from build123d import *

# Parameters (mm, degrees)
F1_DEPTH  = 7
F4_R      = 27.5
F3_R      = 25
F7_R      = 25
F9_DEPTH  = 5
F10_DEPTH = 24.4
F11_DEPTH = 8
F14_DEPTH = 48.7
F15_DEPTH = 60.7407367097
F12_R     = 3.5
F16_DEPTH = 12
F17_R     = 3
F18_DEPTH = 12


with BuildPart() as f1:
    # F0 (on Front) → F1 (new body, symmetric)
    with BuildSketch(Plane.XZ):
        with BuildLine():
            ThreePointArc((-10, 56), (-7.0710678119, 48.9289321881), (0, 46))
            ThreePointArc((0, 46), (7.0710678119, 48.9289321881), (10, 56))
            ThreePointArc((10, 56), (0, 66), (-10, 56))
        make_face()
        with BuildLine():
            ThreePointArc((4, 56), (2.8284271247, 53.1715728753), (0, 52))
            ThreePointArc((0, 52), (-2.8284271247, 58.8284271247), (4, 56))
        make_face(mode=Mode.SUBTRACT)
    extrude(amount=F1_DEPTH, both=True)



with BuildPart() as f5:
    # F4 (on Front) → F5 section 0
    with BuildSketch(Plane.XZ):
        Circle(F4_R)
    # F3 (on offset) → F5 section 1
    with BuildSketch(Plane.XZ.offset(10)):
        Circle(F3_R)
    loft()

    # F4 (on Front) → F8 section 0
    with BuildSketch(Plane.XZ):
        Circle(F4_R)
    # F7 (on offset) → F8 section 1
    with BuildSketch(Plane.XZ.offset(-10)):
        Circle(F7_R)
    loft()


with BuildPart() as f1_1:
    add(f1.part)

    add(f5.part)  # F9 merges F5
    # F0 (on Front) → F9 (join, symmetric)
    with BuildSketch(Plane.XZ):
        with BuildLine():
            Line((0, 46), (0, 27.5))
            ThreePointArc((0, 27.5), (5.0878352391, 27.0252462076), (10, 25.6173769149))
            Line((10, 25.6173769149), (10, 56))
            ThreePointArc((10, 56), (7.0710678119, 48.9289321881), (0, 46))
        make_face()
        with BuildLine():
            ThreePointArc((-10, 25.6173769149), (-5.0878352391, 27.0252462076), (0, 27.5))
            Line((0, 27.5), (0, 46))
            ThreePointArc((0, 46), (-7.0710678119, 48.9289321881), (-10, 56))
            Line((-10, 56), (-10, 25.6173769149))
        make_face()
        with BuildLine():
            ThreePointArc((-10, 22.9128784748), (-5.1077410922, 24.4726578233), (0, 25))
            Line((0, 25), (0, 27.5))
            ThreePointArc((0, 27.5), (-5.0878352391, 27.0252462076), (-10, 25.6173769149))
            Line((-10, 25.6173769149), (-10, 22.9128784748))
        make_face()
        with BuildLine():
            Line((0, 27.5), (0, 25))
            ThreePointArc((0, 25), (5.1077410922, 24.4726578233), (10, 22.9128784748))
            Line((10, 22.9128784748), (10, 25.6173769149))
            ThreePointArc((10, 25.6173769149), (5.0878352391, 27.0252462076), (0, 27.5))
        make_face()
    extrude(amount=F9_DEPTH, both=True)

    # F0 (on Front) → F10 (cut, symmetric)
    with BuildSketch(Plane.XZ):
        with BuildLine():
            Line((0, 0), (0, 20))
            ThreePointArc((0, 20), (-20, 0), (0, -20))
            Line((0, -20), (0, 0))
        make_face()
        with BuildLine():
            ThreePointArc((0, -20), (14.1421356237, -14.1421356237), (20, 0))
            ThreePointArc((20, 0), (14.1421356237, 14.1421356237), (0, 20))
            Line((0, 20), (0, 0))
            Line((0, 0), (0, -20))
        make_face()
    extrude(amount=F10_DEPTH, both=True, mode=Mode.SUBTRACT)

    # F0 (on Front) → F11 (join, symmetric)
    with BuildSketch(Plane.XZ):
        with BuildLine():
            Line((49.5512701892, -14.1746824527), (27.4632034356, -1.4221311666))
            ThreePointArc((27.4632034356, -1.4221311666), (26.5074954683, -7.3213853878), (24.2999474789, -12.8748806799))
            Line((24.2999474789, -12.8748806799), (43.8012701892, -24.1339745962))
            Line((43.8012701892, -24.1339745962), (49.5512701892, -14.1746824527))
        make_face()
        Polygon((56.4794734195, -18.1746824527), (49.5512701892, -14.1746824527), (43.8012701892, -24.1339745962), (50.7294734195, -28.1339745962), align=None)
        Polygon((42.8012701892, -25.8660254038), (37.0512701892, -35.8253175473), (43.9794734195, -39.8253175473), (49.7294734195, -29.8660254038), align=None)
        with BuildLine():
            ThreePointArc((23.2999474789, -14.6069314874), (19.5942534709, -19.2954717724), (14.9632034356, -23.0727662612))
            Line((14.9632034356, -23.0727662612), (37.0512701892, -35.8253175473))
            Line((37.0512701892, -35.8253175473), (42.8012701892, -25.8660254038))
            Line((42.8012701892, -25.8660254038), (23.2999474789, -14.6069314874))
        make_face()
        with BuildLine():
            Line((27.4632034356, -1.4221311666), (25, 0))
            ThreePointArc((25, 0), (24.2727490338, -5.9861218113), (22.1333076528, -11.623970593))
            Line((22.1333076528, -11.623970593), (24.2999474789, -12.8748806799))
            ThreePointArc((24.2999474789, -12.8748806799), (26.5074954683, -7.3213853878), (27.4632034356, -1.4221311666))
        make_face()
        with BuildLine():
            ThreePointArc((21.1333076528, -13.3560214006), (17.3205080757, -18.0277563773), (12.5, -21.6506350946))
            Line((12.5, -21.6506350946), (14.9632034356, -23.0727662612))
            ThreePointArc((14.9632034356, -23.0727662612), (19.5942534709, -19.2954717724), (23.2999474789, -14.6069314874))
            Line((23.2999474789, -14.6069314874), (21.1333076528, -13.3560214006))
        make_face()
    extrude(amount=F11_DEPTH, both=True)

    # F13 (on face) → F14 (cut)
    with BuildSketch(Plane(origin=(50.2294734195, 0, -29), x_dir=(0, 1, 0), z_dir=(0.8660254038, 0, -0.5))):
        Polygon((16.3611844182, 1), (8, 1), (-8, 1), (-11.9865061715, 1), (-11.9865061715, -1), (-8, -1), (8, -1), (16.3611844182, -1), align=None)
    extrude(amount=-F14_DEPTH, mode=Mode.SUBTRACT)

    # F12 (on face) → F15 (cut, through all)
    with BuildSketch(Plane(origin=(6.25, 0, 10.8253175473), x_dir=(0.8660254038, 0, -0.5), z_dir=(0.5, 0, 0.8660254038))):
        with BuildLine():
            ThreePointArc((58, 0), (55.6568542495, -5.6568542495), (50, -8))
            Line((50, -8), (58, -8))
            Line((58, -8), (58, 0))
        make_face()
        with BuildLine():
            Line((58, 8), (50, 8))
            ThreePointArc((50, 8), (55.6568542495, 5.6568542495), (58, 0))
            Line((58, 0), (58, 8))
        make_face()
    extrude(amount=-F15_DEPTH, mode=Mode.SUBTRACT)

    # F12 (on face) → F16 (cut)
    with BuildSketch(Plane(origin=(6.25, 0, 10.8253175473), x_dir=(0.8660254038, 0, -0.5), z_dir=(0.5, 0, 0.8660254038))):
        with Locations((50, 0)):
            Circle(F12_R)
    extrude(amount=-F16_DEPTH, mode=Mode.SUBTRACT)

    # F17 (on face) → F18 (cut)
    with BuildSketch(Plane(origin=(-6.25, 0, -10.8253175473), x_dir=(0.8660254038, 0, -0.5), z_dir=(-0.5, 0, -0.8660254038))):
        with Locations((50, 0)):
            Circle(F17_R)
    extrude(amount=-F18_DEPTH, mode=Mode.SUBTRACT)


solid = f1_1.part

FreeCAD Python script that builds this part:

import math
import FreeCAD as App
import Part
import Sketcher

V = App.Vector
Q = App.Units.Quantity

doc = App.newDocument("Part")
params = doc.addObject("Spreadsheet::Sheet", "Params")
for row, (alias, value) in enumerate([
    ("sketch1_radius", "10 mm"),
    ("sketch1_radius2", "4 mm"),
    ("pad1_length", "14 mm"),
    ("sketch2_diameter", "55 mm"),
    ("sketch3_diameter", "50 mm"),
    ("sketch4_diameter", "55 mm"),
    ("sketch5_diameter", "50 mm"),
    ("sketch6_radius", "10 mm"),
    ("sketch6_radius2", "25 mm"),
    ("pad2_length", "10 mm"),
    ("sketch7_radius", "20 mm"),
    ("pocket1_length", "48.8 mm"),
    ("sketch8_radius", "25 mm"),
    ("sketch8_length", "8 mm"),
    ("pad3_length", "16 mm"),
    ("sketch9_height", "2 mm"),
    ("pocket2_length", "48.7 mm"),
    ("sketch10_radius", "8 mm"),
    ("sketch11_diameter", "7 mm"),
    ("pocket4_length", "12 mm"),
    ("sketch12_diameter", "6 mm"),
    ("pocket5_length", "12 mm"),
], start=1):
    params.set(f"A{row}", alias)
    params.set(f"B{row}", "=" + value)
    params.setAlias(f"B{row}", alias)

body = doc.addObject("PartDesign::Body", "Body")

# Sketch on XZ plane
sketch1 = body.newObject("Sketcher::SketchObject", "Sketch")
sketch1.AttachmentSupport = (doc.getObject("XZ_Plane"), [""])
sketch1.MapMode = "FlatFace"
sketch1.addGeometry(Part.ArcOfCircle(Part.Circle(V(0, 56, 0), V(0, 0, 1), 10), math.radians(180), math.radians(270)), False)
sketch1.addGeometry(Part.ArcOfCircle(Part.Circle(V(0, 56, 0), V(0, 0, 1), 10), math.radians(-90), math.radians(0)), False)
sketch1.addGeometry(Part.ArcOfCircle(Part.Circle(V(0, 56, 0), V(0, 0, 1), 10), math.radians(0), math.radians(180)), False)
sketch1.addGeometry(Part.ArcOfCircle(Part.Circle(V(0, 56, 0), V(0, 0, 1), 4), math.radians(0), math.radians(270)), False)
sketch1.addGeometry(Part.ArcOfCircle(Part.Circle(V(0, 56, 0), V(0, 0, 1), 4), math.radians(-90), math.radians(0)), False)
sketch1.addConstraint(Sketcher.Constraint("Tangent", 0, 2, 1, 1))
sketch1.addConstraint(Sketcher.Constraint("Tangent", 1, 2, 2, 1))
sketch1.addConstraint(Sketcher.Constraint("Tangent", 2, 2, 0, 1))
sketch1.addConstraint(Sketcher.Constraint("Tangent", 3, 1, 4, 2))
sketch1.addConstraint(Sketcher.Constraint("Coincident", 4, 1, 3, 2))
sketch1.addConstraint(Sketcher.Constraint("Coincident", 3, 3, 0, 3))
sketch1.addConstraint(Sketcher.Constraint("Symmetric", 1, 2, 2, 2, -2))
sketch1.addConstraint(Sketcher.Constraint("PointOnObject", 0, 2, -2))
sketch1.addConstraint(Sketcher.Constraint("PointOnObject", 4, 1, -2))
sketch1.addConstraint(Sketcher.Constraint("Horizontal", 4, 3, 1, 2))
sketch1.addConstraint(Sketcher.Constraint("Horizontal", 2, 2, 3, 1))
sketch1.addConstraint(Sketcher.Constraint("Radius", 0, 10.0))
sketch1.addConstraint(Sketcher.Constraint("Radius", 3, 4.0))
sketch1.addConstraint(Sketcher.Constraint("DistanceY", -1, 1, 0, 3, 56.0))
sketch1.setExpression("Constraints[11]", "Params.sketch1_radius")
sketch1.setExpression("Constraints[12]", "Params.sketch1_radius2")
pad1 = body.newObject("PartDesign::Pad", "Pad")
pad1.Profile = sketch1
pad1.setExpression("Length", "Params.pad1_length")
pad1.Midplane = True
body2 = doc.addObject("PartDesign::Body", "Body001")

# Sketch on XZ plane
sketch2 = body2.newObject("Sketcher::SketchObject", "Sketch001")
sketch2.AttachmentSupport = (doc.getObject("XZ_Plane001"), [""])
sketch2.MapMode = "FlatFace"
sketch2.addGeometry(Part.Circle(V(0, 0, 0), V(0, 0, 1), 27.5), False)
sketch2.addConstraint(Sketcher.Constraint("Coincident", 0, 3, -1, 1))
sketch2.addConstraint(Sketcher.Constraint("Diameter", 0, 55.0))
sketch2.setExpression("Constraints[1]", "Params.sketch2_diameter")

# Sketch on XZ plane
sketch3 = body2.newObject("Sketcher::SketchObject", "Sketch002")
sketch3.AttachmentSupport = (doc.getObject("XZ_Plane001"), [""])
sketch3.MapMode = "FlatFace"
sketch3.AttachmentOffset = App.Placement(V(0, 0, 10), App.Rotation())
sketch3.addGeometry(Part.Circle(V(0, 0, 0), V(0, 0, 1), 25), False)
sketch3.addConstraint(Sketcher.Constraint("Coincident", 0, 3, -1, 1))
sketch3.addConstraint(Sketcher.Constraint("Diameter", 0, 50.0))
sketch3.setExpression("Constraints[1]", "Params.sketch3_diameter")

additiveloft = body2.newObject("PartDesign::AdditiveLoft", "AdditiveLoft")
additiveloft.Profile = sketch2
additiveloft.Sections = [sketch3]

# Sketch on XZ plane
sketch4 = body2.newObject("Sketcher::SketchObject", "Sketch003")
sketch4.AttachmentSupport = (doc.getObject("XZ_Plane001"), [""])
sketch4.MapMode = "FlatFace"
sketch4.addGeometry(Part.Circle(V(0, 0, 0), V(0, 0, 1), 27.5), False)
sketch4.addConstraint(Sketcher.Constraint("Coincident", 0, 3, -1, 1))
sketch4.addConstraint(Sketcher.Constraint("Diameter", 0, 55.0))
sketch4.setExpression("Constraints[1]", "Params.sketch4_diameter")

# Sketch on XZ plane
sketch5 = body2.newObject("Sketcher::SketchObject", "Sketch004")
sketch5.AttachmentSupport = (doc.getObject("XZ_Plane001"), [""])
sketch5.MapMode = "FlatFace"
sketch5.AttachmentOffset = App.Placement(V(0, 0, -10), App.Rotation())
sketch5.addGeometry(Part.Circle(V(0, 0, 0), V(0, 0, 1), 25), False)
sketch5.addConstraint(Sketcher.Constraint("Coincident", 0, 3, -1, 1))
sketch5.addConstraint(Sketcher.Constraint("Diameter", 0, 50.0))
sketch5.setExpression("Constraints[1]", "Params.sketch5_diameter")

additiveloft2 = body2.newObject("PartDesign::AdditiveLoft", "AdditiveLoft001")
additiveloft2.Profile = sketch4
additiveloft2.Sections = [sketch5]
body.AllowCompound = True
doc.recompute()

boolean = body.newObject("PartDesign::Boolean", "Boolean")
boolean.Type = "Fuse"
boolean.addObjects([body2])

# Sketch on XZ plane
sketch6 = body.newObject("Sketcher::SketchObject", "Sketch005")
sketch6.AttachmentSupport = (doc.getObject("XZ_Plane"), [""])
sketch6.MapMode = "FlatFace"
sketch6.addGeometry(Part.ArcOfCircle(Part.Circle(V(0, 56, 0), V(0, 0, 1), 10), math.radians(-90), math.radians(0)), False)
sketch6.addGeometry(Part.ArcOfCircle(Part.Circle(V(0, 56, 0), V(0, 0, 1), 10), math.radians(180), math.radians(270)), False)
sketch6.addGeometry(Part.LineSegment(V(-10, 56, 0), V(-10, 22.912878, 0)), False)
sketch6.addGeometry(Part.ArcOfCircle(Part.Circle(V(0, 0, 0), V(0, 0, 1), 25), math.radians(90), math.radians(113.578178)), False)
sketch6.addGeometry(Part.ArcOfCircle(Part.Circle(V(0, 0, 0), V(0, 0, 1), 25), math.radians(66.421822), math.radians(90)), False)
sketch6.addGeometry(Part.LineSegment(V(10, 22.912878, 0), V(10, 56, 0)), False)
sketch6.addConstraint(Sketcher.Constraint("Tangent", 0, 1, 1, 2))
sketch6.addConstraint(Sketcher.Constraint("Tangent", 1, 1, 2, 1))
sketch6.addConstraint(Sketcher.Constraint("Coincident", 2, 2, 3, 2))
sketch6.addConstraint(Sketcher.Constraint("Tangent", 3, 1, 4, 2))
sketch6.addConstraint(Sketcher.Constraint("Coincident", 4, 1, 5, 1))
sketch6.addConstraint(Sketcher.Constraint("Tangent", 5, 2, 0, 2))
sketch6.addConstraint(Sketcher.Constraint("Vertical", 2))
sketch6.addConstraint(Sketcher.Constraint("Vertical", 5))
sketch6.addConstraint(Sketcher.Constraint("Coincident", 3, 3, -1, 1))
sketch6.addConstraint(Sketcher.Constraint("Equal", 0, 1))
sketch6.addConstraint(Sketcher.Constraint("Equal", 3, 4))
sketch6.addConstraint(Sketcher.Constraint("PointOnObject", 0, 3, -2))
sketch6.addConstraint(Sketcher.Constraint("PointOnObject", 0, 1, -2))
sketch6.addConstraint(Sketcher.Constraint("PointOnObject", 3, 1, -2))
sketch6.addConstraint(Sketcher.Constraint("Radius", 0, 10.0))
sketch6.addConstraint(Sketcher.Constraint("Radius", 3, 25.0))
sketch6.addConstraint(Sketcher.Constraint("DistanceY", -1, 1, 0, 3, 56.0))
sketch6.setExpression("Constraints[14]", "Params.sketch6_radius")
sketch6.setExpression("Constraints[15]", "Params.sketch6_radius2")
pad2 = body.newObject("PartDesign::Pad", "Pad001")
pad2.Profile = sketch6
pad2.setExpression("Length", "Params.pad2_length")
pad2.Midplane = True

# Sketch on XZ plane
sketch7 = body.newObject("Sketcher::SketchObject", "Sketch006")
sketch7.AttachmentSupport = (doc.getObject("XZ_Plane"), [""])
sketch7.MapMode = "FlatFace"
sketch7.addGeometry(Part.ArcOfCircle(Part.Circle(V(0, 0, 0), V(0, 0, 1), 20), math.radians(90), math.radians(270)), False)
sketch7.addGeometry(Part.ArcOfCircle(Part.Circle(V(0, 0, 0), V(0, 0, 1), 20), math.radians(-90), math.radians(0)), False)
sketch7.addGeometry(Part.ArcOfCircle(Part.Circle(V(0, 0, 0), V(0, 0, 1), 20), math.radians(0), math.radians(90)), False)
sketch7.addConstraint(Sketcher.Constraint("Tangent", 0, 2, 1, 1))
sketch7.addConstraint(Sketcher.Constraint("Tangent", 1, 2, 2, 1))
sketch7.addConstraint(Sketcher.Constraint("Tangent", 2, 2, 0, 1))
sketch7.addConstraint(Sketcher.Constraint("Coincident", 0, 3, -1, 1))
sketch7.addConstraint(Sketcher.Constraint("PointOnObject", 0, 2, -2))
sketch7.addConstraint(Sketcher.Constraint("PointOnObject", 1, 2, -1))
sketch7.addConstraint(Sketcher.Constraint("PointOnObject", 2, 2, -2))
sketch7.addConstraint(Sketcher.Constraint("Radius", 0, 20.0))
sketch7.setExpression("Constraints[7]", "Params.sketch7_radius")
pocket1 = body.newObject("PartDesign::Pocket", "Pocket")
pocket1.Profile = sketch7
pocket1.setExpression("Length", "Params.pocket1_length")
pocket1.Midplane = True

# Sketch on XZ plane
sketch8 = body.newObject("Sketcher::SketchObject", "Sketch007")
sketch8.AttachmentSupport = (doc.getObject("XZ_Plane"), [""])
sketch8.MapMode = "FlatFace"
sketch8.addGeometry(Part.LineSegment(V(49.55127, -14.174682, 0), V(27.463203, -1.422131, 0)), False)
sketch8.addGeometry(Part.LineSegment(V(27.463203, -1.422131, 0), V(25, 0, 0)), False)
sketch8.addGeometry(Part.ArcOfCircle(Part.Circle(V(0, 0, 0), V(0, 0, 1), 25), math.radians(-27.707557), math.radians(0)), False)
sketch8.addGeometry(Part.LineSegment(V(22.133308, -11.623971, 0), V(24.299947, -12.874881, 0)), False)
sketch8.addGeometry(Part.LineSegment(V(24.299947, -12.874881, 0), V(50.729473, -28.133975, 0)), False)
sketch8.addGeometry(Part.LineSegment(V(50.729473, -28.133975, 0), V(56.479473, -18.174682, 0)), False)
sketch8.addGeometry(Part.LineSegment(V(56.479473, -18.174682, 0), V(49.55127, -14.174682, 0)), False)
sketch8.addGeometry(Part.LineSegment(V(37.05127, -35.825318, 0), V(43.979473, -39.825318, 0)), False)
sketch8.addGeometry(Part.LineSegment(V(43.979473, -39.825318, 0), V(49.729473, -29.866025, 0)), False)
sketch8.addGeometry(Part.LineSegment(V(49.729473, -29.866025, 0), V(42.80127, -25.866025, 0)), False)
sketch8.addGeometry(Part.LineSegment(V(42.80127, -25.866025, 0), V(23.299947, -14.606931, 0)), False)
sketch8.addGeometry(Part.LineSegment(V(23.299947, -14.606931, 0), V(21.133308, -13.356021, 0)), False)
sketch8.addGeometry(Part.ArcOfCircle(Part.Circle(V(0, 0, 0), V(0, 0, 1), 25), math.radians(-60), math.radians(-32.292443)), False)
sketch8.addGeometry(Part.LineSegment(V(12.5, -21.650635, 0), V(14.963203, -23.072766, 0)), False)
sketch8.addGeometry(Part.LineSegment(V(14.963203, -23.072766, 0), V(37.05127, -35.825318, 0)), False)
sketch8.addConstraint(Sketcher.Constraint("Coincident", 0, 2, 1, 1))
sketch8.addConstraint(Sketcher.Constraint("Coincident", 1, 2, 2, 2))
sketch8.addConstraint(Sketcher.Constraint("Coincident", 2, 1, 3, 1))
sketch8.addConstraint(Sketcher.Constraint("Coincident", 3, 2, 4, 1))
sketch8.addConstraint(Sketcher.Constraint("Coincident", 4, 2, 5, 1))
sketch8.addConstraint(Sketcher.Constraint("Coincident", 5, 2, 6, 1))
sketch8.addConstraint(Sketcher.Constraint("Coincident", 6, 2, 0, 1))
sketch8.addConstraint(Sketcher.Constraint("Coincident", 7, 2, 8, 1))
sketch8.addConstraint(Sketcher.Constraint("Coincident", 8, 2, 9, 1))
sketch8.addConstraint(Sketcher.Constraint("Coincident", 9, 2, 10, 1))
sketch8.addConstraint(Sketcher.Constraint("Coincident", 10, 2, 11, 1))
sketch8.addConstraint(Sketcher.Constraint("Coincident", 11, 2, 12, 2))
sketch8.addConstraint(Sketcher.Constraint("Coincident", 12, 1, 13, 1))
sketch8.addConstraint(Sketcher.Constraint("Coincident", 13, 2, 14, 1))
sketch8.addConstraint(Sketcher.Constraint("Coincident", 14, 2, 7, 1))
sketch8.addConstraint(Sketcher.Constraint("Coincident", 2, 3, -1, 1))
sketch8.addConstraint(Sketcher.Constraint("Coincident", 12, 3, -1, 1))
sketch8.addConstraint(Sketcher.Constraint("Equal", 2, 12))
sketch8.addConstraint(Sketcher.Constraint("PointOnObject", 1, 2, -1))
sketch8.addConstraint(Sketcher.Constraint("Parallel", 0, 1))
sketch8.addConstraint(Sketcher.Constraint("Parallel", 1, 3))
sketch8.addConstraint(Sketcher.Constraint("Parallel", 3, 4))
sketch8.addConstraint(Sketcher.Constraint("Perpendicular", 4, 5))
sketch8.addConstraint(Sketcher.Constraint("Perpendicular", 5, 6))
sketch8.addConstraint(Sketcher.Constraint("Parallel", 6, 7))
sketch8.addConstraint(Sketcher.Constraint("Perpendicular", 7, 8))
sketch8.addConstraint(Sketcher.Constraint("Perpendicular", 8, 9))
sketch8.addConstraint(Sketcher.Constraint("Parallel", 9, 10))
sketch8.addConstraint(Sketcher.Constraint("Parallel", 10, 11))
sketch8.addConstraint(Sketcher.Constraint("Parallel", 11, 13))
sketch8.addConstraint(Sketcher.Constraint("Parallel", 13, 14))
sketch8.addConstraint(Sketcher.Constraint("Equal", 6, 7))
sketch8.addConstraint(Sketcher.Constraint("Equal", 5, 8))
sketch8.addConstraint(Sketcher.Constraint("Equal", 7, 9))
sketch8.addConstraint(Sketcher.Constraint("Equal", 3, 11))
sketch8.addConstraint(Sketcher.Constraint("Equal", 1, 13))
sketch8.addConstraint(Sketcher.Constraint("Equal", 0, 14))
sketch8.addConstraint(Sketcher.Constraint("Radius", 2, 25.0))
sketch8.addConstraint(Sketcher.Constraint("Angle", 0, Q("150 deg")))
sketch8.addConstraint(Sketcher.Constraint("Distance", 6, 8.0))
sketch8.addConstraint(Sketcher.Constraint("DistanceX", 8, 2, 4, 2, 1.0))
sketch8.addConstraint(Sketcher.Constraint("DistanceX", 10, 2, 3, 2, 1.0))
sketch8.addConstraint(Sketcher.Constraint("DistanceY", 5, 2, 3, 2, 5.299802))
sketch8.addConstraint(Sketcher.Constraint("DistanceY", 10, 2, 0, 2, 13.1848))
sketch8.addConstraint(Sketcher.Constraint("Distance", 3, 2.50182))
sketch8.setExpression("Constraints[37]", "Params.sketch8_radius")
sketch8.setExpression("Constraints[39]", "Params.sketch8_length")
pad3 = body.newObject("PartDesign::Pad", "Pad002")
pad3.Profile = sketch8
pad3.setExpression("Length", "Params.pad3_length")
pad3.Midplane = True

# Sketch on an angled plane
sketch9 = body.newObject("Sketcher::SketchObject", "Sketch008")
sketch9.Placement = App.Placement(V(50.229473, 0, -29), App.Rotation(V(0, 1, 0), V(0.5, 0, 0.866025404), V(0.866025404, 0, -0.5), "ZXY"))
sketch9.addGeometry(Part.LineSegment(V(16.361184, 1, 0), V(-11.986506, 1, 0)), False)
sketch9.addGeometry(Part.LineSegment(V(-11.986506, 1, 0), V(-11.986506, -1, 0)), False)
sketch9.addGeometry(Part.LineSegment(V(-11.986506, -1, 0), V(16.361184, -1, 0)), False)
sketch9.addGeometry(Part.LineSegment(V(16.361184, -1, 0), V(16.361184, 1, 0)), False)
sketch9.addConstraint(Sketcher.Constraint("Coincident", 0, 2, 1, 1))
sketch9.addConstraint(Sketcher.Constraint("Coincident", 1, 2, 2, 1))
sketch9.addConstraint(Sketcher.Constraint("Coincident", 2, 2, 3, 1))
sketch9.addConstraint(Sketcher.Constraint("Coincident", 3, 2, 0, 1))
sketch9.addConstraint(Sketcher.Constraint("Horizontal", 0))
sketch9.addConstraint(Sketcher.Constraint("Vertical", 1))
sketch9.addConstraint(Sketcher.Constraint("Horizontal", 2))
sketch9.addConstraint(Sketcher.Constraint("Vertical", 3))
sketch9.addConstraint(Sketcher.Constraint("DistanceY", 1, 2, 1, 1, 2.0))
sketch9.addConstraint(Sketcher.Constraint("DistanceY", -1, 1, 0, 2, 1.0))
sketch9.addConstraint(Sketcher.Constraint("DistanceX", 0, 2, 0, 1, 28.347691))
sketch9.addConstraint(Sketcher.Constraint("DistanceX", 0, 2, -1, 1, 11.986506))
sketch9.setExpression("Constraints[8]", "Params.sketch9_height")
pocket2 = body.newObject("PartDesign::Pocket", "Pocket001")
pocket2.Profile = sketch9
pocket2.setExpression("Length", "Params.pocket2_length")

# Sketch on an angled plane
sketch10 = body.newObject("Sketcher::SketchObject", "Sketch009")
sketch10.Placement = App.Placement(V(6.25, 0, 10.825318), App.Rotation(V(0.866025404, 0, -0.5), V(0, 1, 0), V(0.5, 0, 0.866025404), "ZXY"))
sketch10.addGeometry(Part.ArcOfCircle(Part.Circle(V(50, 0, 0), V(0, 0, 1), 8), math.radians(-90), math.radians(0)), False)
sketch10.addGeometry(Part.LineSegment(V(50, -8, 0), V(58, -8, 0)), False)
sketch10.addGeometry(Part.LineSegment(V(58, -8, 0), V(58, 0, 0)), False)
sketch10.addGeometry(Part.LineSegment(V(58, 8, 0), V(50, 8, 0)), False)
sketch10.addGeometry(Part.ArcOfCircle(Part.Circle(V(50, 0, 0), V(0, 0, 1), 8), math.radians(0), math.radians(90)), False)
sketch10.addGeometry(Part.LineSegment(V(58, 0, 0), V(58, 8, 0)), False)
sketch10.addConstraint(Sketcher.Constraint("Tangent", 0, 1, 1, 1))
sketch10.addConstraint(Sketcher.Constraint("Coincident", 1, 2, 2, 1))
sketch10.addConstraint(Sketcher.Constraint("Tangent", 2, 2, 0, 2))
sketch10.addConstraint(Sketcher.Constraint("Tangent", 3, 2, 4, 2))
sketch10.addConstraint(Sketcher.Constraint("Tangent", 4, 1, 5, 1))
sketch10.addConstraint(Sketcher.Constraint("Coincident", 5, 2, 3, 1))
sketch10.addConstraint(Sketcher.Constraint("Horizontal", 1))
sketch10.addConstraint(Sketcher.Constraint("Vertical", 2))
sketch10.addConstraint(Sketcher.Constraint("Horizontal", 3))
sketch10.addConstraint(Sketcher.Constraint("Vertical", 5))
sketch10.addConstraint(Sketcher.Constraint("Coincident", 4, 3, 0, 3))
sketch10.addConstraint(Sketcher.Constraint("Equal", 0, 4))
sketch10.addConstraint(Sketcher.Constraint("PointOnObject", 0, 3, -1))
sketch10.addConstraint(Sketcher.Constraint("Radius", 0, 8.0))
sketch10.addConstraint(Sketcher.Constraint("DistanceX", -1, 1, 0, 3, 50.0))
sketch10.setExpression("Constraints[13]", "Params.sketch10_radius")
pocket3 = body.newObject("PartDesign::Pocket", "Pocket002")
pocket3.Profile = sketch10
pocket3.Type = "ThroughAll"

# Sketch on an angled plane
sketch11 = body.newObject("Sketcher::SketchObject", "Sketch010")
sketch11.Placement = App.Placement(V(6.25, 0, 10.825318), App.Rotation(V(0.866025404, 0, -0.5), V(0, 1, 0), V(0.5, 0, 0.866025404), "ZXY"))
sketch11.addGeometry(Part.Circle(V(50, 0, 0), V(0, 0, 1), 3.5), False)
sketch11.addConstraint(Sketcher.Constraint("PointOnObject", 0, 3, -1))
sketch11.addConstraint(Sketcher.Constraint("Diameter", 0, 7.0))
sketch11.addConstraint(Sketcher.Constraint("DistanceX", -1, 1, 0, 3, 50.0))
sketch11.setExpression("Constraints[1]", "Params.sketch11_diameter")
pocket4 = body.newObject("PartDesign::Pocket", "Pocket003")
pocket4.Profile = sketch11
pocket4.setExpression("Length", "Params.pocket4_length")

# Sketch on an angled plane
sketch12 = body.newObject("Sketcher::SketchObject", "Sketch011")
sketch12.Placement = App.Placement(V(-6.25, 0, -10.825318), App.Rotation(V(0.866025404, 0, -0.5), V(0, -1, 0), V(-0.5, 0, -0.866025404), "ZXY"))
sketch12.addGeometry(Part.Circle(V(50, 0, 0), V(0, 0, 1), 3), False)
sketch12.addConstraint(Sketcher.Constraint("PointOnObject", 0, 3, -1))
sketch12.addConstraint(Sketcher.Constraint("Diameter", 0, 6.0))
sketch12.addConstraint(Sketcher.Constraint("DistanceX", -1, 1, 0, 3, 50.0))
sketch12.setExpression("Constraints[1]", "Params.sketch12_diameter")
pocket5 = body.newObject("PartDesign::Pocket", "Pocket004")
pocket5.Profile = sketch12
pocket5.setExpression("Length", "Params.pocket5_length")

doc.recompute()
